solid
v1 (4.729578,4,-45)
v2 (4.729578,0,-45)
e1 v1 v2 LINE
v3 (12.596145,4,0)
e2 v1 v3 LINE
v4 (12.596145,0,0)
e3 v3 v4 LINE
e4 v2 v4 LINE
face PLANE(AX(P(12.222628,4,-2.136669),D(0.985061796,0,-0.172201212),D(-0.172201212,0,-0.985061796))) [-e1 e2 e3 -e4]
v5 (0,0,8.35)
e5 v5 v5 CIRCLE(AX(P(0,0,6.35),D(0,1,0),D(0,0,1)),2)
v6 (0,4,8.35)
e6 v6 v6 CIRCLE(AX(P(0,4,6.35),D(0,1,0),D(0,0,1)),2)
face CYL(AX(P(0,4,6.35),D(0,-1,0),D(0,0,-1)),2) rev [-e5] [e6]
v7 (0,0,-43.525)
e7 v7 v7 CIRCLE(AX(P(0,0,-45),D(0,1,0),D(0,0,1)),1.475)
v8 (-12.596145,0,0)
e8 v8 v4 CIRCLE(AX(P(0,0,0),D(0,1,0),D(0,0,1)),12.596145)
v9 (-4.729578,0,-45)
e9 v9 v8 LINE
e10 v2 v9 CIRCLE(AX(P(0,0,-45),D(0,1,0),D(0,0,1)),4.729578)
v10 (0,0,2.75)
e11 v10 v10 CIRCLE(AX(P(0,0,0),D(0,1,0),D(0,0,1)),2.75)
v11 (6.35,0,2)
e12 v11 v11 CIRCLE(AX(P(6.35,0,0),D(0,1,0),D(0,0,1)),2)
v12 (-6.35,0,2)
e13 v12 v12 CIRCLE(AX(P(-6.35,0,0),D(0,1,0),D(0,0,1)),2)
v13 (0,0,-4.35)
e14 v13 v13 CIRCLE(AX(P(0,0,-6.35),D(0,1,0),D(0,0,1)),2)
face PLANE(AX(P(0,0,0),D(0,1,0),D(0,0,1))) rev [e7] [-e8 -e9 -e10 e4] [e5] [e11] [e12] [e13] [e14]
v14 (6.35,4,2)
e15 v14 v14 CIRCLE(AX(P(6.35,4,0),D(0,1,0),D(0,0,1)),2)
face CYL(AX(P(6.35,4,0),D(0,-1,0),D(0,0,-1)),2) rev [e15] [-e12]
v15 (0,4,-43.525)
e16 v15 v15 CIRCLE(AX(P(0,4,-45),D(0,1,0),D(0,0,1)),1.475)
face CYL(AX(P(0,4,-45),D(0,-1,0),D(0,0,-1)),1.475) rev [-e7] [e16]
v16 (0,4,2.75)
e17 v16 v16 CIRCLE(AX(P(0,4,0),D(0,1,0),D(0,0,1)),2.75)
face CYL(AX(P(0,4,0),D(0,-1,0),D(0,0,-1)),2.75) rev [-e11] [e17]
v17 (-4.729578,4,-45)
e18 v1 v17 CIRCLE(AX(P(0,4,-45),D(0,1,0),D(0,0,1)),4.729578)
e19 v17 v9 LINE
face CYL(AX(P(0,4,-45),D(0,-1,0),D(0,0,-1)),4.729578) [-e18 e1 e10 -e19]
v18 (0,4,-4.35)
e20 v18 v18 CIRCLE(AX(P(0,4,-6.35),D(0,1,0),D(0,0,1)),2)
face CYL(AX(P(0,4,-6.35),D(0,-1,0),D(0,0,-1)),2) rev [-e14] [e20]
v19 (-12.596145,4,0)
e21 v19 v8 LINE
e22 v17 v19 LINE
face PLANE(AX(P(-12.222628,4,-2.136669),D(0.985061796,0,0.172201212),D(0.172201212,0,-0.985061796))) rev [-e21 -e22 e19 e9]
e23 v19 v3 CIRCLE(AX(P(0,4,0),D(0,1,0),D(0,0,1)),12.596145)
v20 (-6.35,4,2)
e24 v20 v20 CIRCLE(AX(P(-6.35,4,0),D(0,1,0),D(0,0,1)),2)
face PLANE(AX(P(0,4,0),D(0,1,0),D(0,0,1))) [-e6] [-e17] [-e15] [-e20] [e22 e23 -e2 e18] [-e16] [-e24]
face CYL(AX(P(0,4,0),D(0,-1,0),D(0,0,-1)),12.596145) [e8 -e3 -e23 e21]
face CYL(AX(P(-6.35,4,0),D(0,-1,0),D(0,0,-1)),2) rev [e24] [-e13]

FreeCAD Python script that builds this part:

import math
import FreeCAD as App
import Part
import Sketcher

V = App.Vector
Q = App.Units.Quantity

doc = App.newDocument("Part")
body = doc.addObject("PartDesign::Body", "Body")

sketch1 = body.newObject("Sketcher::SketchObject", "Sketch")
sketch1.AttachmentSupport = (doc.getObject("XZ_Plane"), [""])
sketch1.MapMode = "FlatFace"
sketch1.addGeometry([
    Part.ArcOfCircle(Part.Circle(V(0, -45, 0), V(0, 0, 1), 4.729578), math.radians(180), math.radians(360)),
    Part.LineSegment(V(-4.729578, -45, 0), V(-11.849112, -4.273339, 0)),
    Part.LineSegment(V(-11.849112, -4.273339, 0), V(-12.596145, 0, 0)),
    Part.ArcOfCircle(Part.Circle(V(0, 0, 0), V(0, 0, 1), 12.596145), math.radians(0), math.radians(180)),
    Part.LineSegment(V(12.596145, 0, 0), V(11.849112, -4.273339, 0)),
    Part.LineSegment(V(11.849112, -4.273339, 0), V(4.729578, -45, 0)),
    Part.Circle(V(0, -45, 0), V(0, 0, 1), 1.475),
    Part.Circle(V(0, -6.35, 0), V(0, 0, 1), 2),
    Part.Circle(V(0, 6.35, 0), V(0, 0, 1), 2),
    Part.Circle(V(-6.35, 0, 0), V(0, 0, 1), 2),
    Part.Circle(V(0, 0, 0), V(0, 0, 1), 2.75),
    Part.Circle(V(6.35, 0, 0), V(0, 0, 1), 2),
], False)
sketch1.addConstraint([
    Sketcher.Constraint("Coincident", 0, 1, 1, 1),
    Sketcher.Constraint("Coincident", 1, 2, 2, 1),
    Sketcher.Constraint("Coincident", 2, 2, 3, 2),
    Sketcher.Constraint("Coincident", 3, 1, 4, 1),
    Sketcher.Constraint("Coincident", 4, 2, 5, 1),
    Sketcher.Constraint("Coincident", 5, 2, 0, 2),
    Sketcher.Constraint("Coincident", 3, 3, -1, 1),
    Sketcher.Constraint("Coincident", 10, 3, -1, 1),
    Sketcher.Constraint("Coincident", 6, 3, 0, 3),
    Sketcher.Constraint("Equal", 7, 8),
    Sketcher.Constraint("Equal", 8, 9),
    Sketcher.Constraint("Equal", 9, 11),
    Sketcher.Constraint("Symmetric", 7, 3, 8, 3, -1, 1),
    Sketcher.Constraint("Symmetric", 9, 3, 11, 3, -1, 1),
    Sketcher.Constraint("Symmetric", 1, 2, 4, 2, -2),
    Sketcher.Constraint("Symmetric", 0, 1, 5, 2, -2),
    Sketcher.Constraint("PointOnObject", 7, 3, -2),
    Sketcher.Constraint("PointOnObject", 9, 3, -1),
    Sketcher.Constraint("PointOnObject", 2, 2, -1),
    Sketcher.Constraint("PointOnObject", 3, 1, -1),
    Sketcher.Constraint("Parallel", 1, 2),
    Sketcher.Constraint("Horizontal", 6, 3, 0, 1),
    Sketcher.Constraint("Diameter", 7, Q("4 mm")),
    Sketcher.Constraint("Diameter", 10, Q("5.5 mm")),
    Sketcher.Constraint("Diameter", 6, Q("2.95 mm")),
    Sketcher.Constraint("DistanceY", 0, 3, -1, 1, Q("45 mm")),
    Sketcher.Constraint("DistanceY", 7, 3, 8, 3, Q("12.7 mm")),
    Sketcher.Constraint("DistanceX", 9, 3, 11, 3, Q("12.7 mm")),
    Sketcher.Constraint("Radius", 0, Q("4.729578 mm")),
    Sketcher.Constraint("Radius", 3, Q("12.596145 mm")),
    Sketcher.Constraint("Distance", 1, Q("41.34427 mm")),
])
pad1 = body.newObject("PartDesign::Pad", "Pad")
pad1.Profile = sketch1
pad1.Length = 4
pad1.Reversed = True

doc.recompute()
